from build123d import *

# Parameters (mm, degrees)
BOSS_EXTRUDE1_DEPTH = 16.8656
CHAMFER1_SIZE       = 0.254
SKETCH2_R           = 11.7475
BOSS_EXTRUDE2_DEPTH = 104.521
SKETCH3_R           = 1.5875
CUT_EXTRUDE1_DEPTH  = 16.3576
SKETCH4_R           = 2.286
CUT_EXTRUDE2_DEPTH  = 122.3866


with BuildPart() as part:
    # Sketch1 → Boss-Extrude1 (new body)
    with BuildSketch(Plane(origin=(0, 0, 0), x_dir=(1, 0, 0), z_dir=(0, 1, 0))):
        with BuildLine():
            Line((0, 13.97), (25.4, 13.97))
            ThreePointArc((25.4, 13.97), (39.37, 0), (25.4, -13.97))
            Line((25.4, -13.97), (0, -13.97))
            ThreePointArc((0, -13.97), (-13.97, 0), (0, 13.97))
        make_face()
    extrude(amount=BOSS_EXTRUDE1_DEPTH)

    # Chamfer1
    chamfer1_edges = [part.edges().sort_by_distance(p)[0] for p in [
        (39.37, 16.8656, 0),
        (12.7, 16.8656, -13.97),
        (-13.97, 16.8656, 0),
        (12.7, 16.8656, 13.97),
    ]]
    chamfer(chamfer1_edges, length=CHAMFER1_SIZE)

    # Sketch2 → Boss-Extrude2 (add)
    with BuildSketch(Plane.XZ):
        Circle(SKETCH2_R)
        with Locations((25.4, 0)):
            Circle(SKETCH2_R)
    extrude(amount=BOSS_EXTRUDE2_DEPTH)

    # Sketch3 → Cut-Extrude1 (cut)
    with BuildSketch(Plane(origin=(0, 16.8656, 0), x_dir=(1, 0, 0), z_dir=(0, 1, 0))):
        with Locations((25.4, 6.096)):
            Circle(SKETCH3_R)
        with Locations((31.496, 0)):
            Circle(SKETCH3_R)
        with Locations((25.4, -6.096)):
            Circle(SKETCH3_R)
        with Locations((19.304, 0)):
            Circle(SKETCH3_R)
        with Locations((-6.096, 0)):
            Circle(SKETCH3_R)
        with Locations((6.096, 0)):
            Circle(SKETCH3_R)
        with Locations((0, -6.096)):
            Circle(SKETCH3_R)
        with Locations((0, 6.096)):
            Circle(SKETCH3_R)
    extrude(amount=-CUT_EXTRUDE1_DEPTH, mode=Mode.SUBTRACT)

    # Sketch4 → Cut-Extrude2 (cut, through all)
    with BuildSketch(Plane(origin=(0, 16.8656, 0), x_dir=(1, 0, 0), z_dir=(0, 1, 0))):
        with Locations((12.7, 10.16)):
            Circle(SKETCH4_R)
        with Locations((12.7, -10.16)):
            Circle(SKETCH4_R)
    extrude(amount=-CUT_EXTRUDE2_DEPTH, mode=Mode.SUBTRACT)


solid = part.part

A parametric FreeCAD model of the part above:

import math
import FreeCAD as App
import Part
import Sketcher
from FreeCAD import Vector
Q = App.Units.Quantity


def edges_at(feature, points):
    """Names of the edges that pass closest to the given points."""
    edges = feature.Shape.Edges
    near = lambda p: min(range(len(edges)), key=lambda i: edges[i].distToShape(Part.Vertex(*p))[0])
    return sorted({f"Edge{near(p) + 1}" for p in points})

doc = App.newDocument("Part")
body = doc.addObject("PartDesign::Body", "Body")

sketch1 = body.newObject("Sketcher::SketchObject", "Sketch")
sketch1.AttachmentSupport = (doc.getObject("XZ_Plane"), [""])
sketch1.MapMode = "FlatFace"
sketch1.addGeometry(Part.LineSegment(Vector(25, -14, 0), Vector(0, -14, 0)), False)
sketch1.addGeometry(Part.ArcOfCircle(Part.Circle(Vector(0, 0, 0), Vector(0, 0, 1), 14), math.radians(90), math.radians(270)), False)
sketch1.addGeometry(Part.LineSegment(Vector(0, 14, 0), Vector(25, 14, 0)), False)
sketch1.addGeometry(Part.ArcOfCircle(Part.Circle(Vector(25, 0, 0), Vector(0, 0, 1), 14), math.radians(-90), math.radians(90)), False)
sketch1.addConstraint(Sketcher.Constraint("Tangent", 0, 2, 1, 2))
sketch1.addConstraint(Sketcher.Constraint("Tangent", 1, 1, 2, 1))
sketch1.addConstraint(Sketcher.Constraint("Tangent", 2, 2, 3, 2))
sketch1.addConstraint(Sketcher.Constraint("Tangent", 3, 1, 0, 1))
sketch1.addConstraint(Sketcher.Constraint("Horizontal", 0))
sketch1.addConstraint(Sketcher.Constraint("Horizontal", 2))
sketch1.addConstraint(Sketcher.Constraint("Coincident", 1, 3, -1, 1))
sketch1.addConstraint(Sketcher.Constraint("DistanceX", 0, 2, 0, 1, Q("1 in")))
sketch1.addConstraint(Sketcher.Constraint("Radius", 1, Q("0.55 in")))
pad1 = body.newObject("PartDesign::Pad", "Pad")
pad1.Profile = sketch1
pad1.Length = Q("0.664 in")
pad1.Reversed = True
doc.recompute()

chamfer = body.newObject("PartDesign::Chamfer", "Chamfer")
chamfer.Base = (pad1, edges_at(pad1, [
    (39.37, 16.866, 0),
    (12.7, 16.866, -13.97),
    (-13.97, 16.866, 0),
    (12.7, 16.866, 13.97),
]))
chamfer.Size = Q("0.01 in")

sketch2 = body.newObject("Sketcher::SketchObject", "Sketch001")
sketch2.AttachmentSupport = (doc.getObject("XZ_Plane"), [""])
sketch2.MapMode = "FlatFace"
sketch2.addGeometry(Part.Circle(Vector(0, 0, 0), Vector(0, 0, 1), 12), False)
sketch2.addGeometry(Part.Circle(Vector(25, 0, 0), Vector(0, 0, 1), 12), False)
sketch2.addConstraint(Sketcher.Constraint("Coincident", 0, 3, -1, 1))
sketch2.addConstraint(Sketcher.Constraint("Equal", 0, 1))
sketch2.addConstraint(Sketcher.Constraint("PointOnObject", 1, 3, -1))
sketch2.addConstraint(Sketcher.Constraint("Diameter", 0, Q("0.925 in")))
sketch2.addConstraint(Sketcher.Constraint("DistanceX", -1, 1, 1, 3, Q("1 in")))
pad2 = body.newObject("PartDesign::Pad", "Pad001")
pad2.Profile = sketch2
pad2.Length = Q("4.115 in")

sketch3 = body.newObject("Sketcher::SketchObject", "Sketch002")
sketch3.AttachmentSupport = (doc.getObject("XZ_Plane"), [""])
sketch3.MapMode = "FlatFace"
sketch3.AttachmentOffset = App.Placement(Vector(0, 0, -0.664 * 25.4), App.Rotation())
sketch3.addGeometry(Part.Circle(Vector(25.4, -6.1, 0), Vector(0, 0, 1), 1.6), False)
sketch3.addGeometry(Part.Circle(Vector(31.5, 0, 0), Vector(0, 0, 1), 1.6), False)
sketch3.addGeometry(Part.Circle(Vector(25.4, 6.1, 0), Vector(0, 0, 1), 1.6), False)
sketch3.addGeometry(Part.Circle(Vector(19.3, 0, 0), Vector(0, 0, 1), 1.6), False)
sketch3.addGeometry(Part.Circle(Vector(-6.1, 0, 0), Vector(0, 0, 1), 1.6), False)
sketch3.addGeometry(Part.Circle(Vector(6.1, 0, 0), Vector(0, 0, 1), 1.6), False)
sketch3.addGeometry(Part.Circle(Vector(0, 6.1, 0), Vector(0, 0, 1), 1.6), False)
sketch3.addGeometry(Part.Circle(Vector(0, -6.1, 0), Vector(0, 0, 1), 1.6), False)
sketch3.addConstraint(Sketcher.Constraint("Equal", 0, 1))
sketch3.addConstraint(Sketcher.Constraint("Equal", 1, 2))
sketch3.addConstraint(Sketcher.Constraint("Equal", 2, 3))
sketch3.addConstraint(Sketcher.Constraint("Equal", 3, 4))
sketch3.addConstraint(Sketcher.Constraint("Equal", 4, 5))
sketch3.addConstraint(Sketcher.Constraint("Equal", 5, 6))
sketch3.addConstraint(Sketcher.Constraint("Equal", 6, 7))
sketch3.addConstraint(Sketcher.Constraint("Symmetric", 4, 3, 5, 3, -1, 1))
sketch3.addConstraint(Sketcher.Constraint("Symmetric", 6, 3, 7, 3, -1, 1))
sketch3.addConstraint(Sketcher.Constraint("Symmetric", 0, 3, 2, 3, -1))
sketch3.addConstraint(Sketcher.Constraint("PointOnObject", 1, 3, -1))
sketch3.addConstraint(Sketcher.Constraint("PointOnObject", 3, 3, -1))
sketch3.addConstraint(Sketcher.Constraint("PointOnObject", 4, 3, -1))
sketch3.addConstraint(Sketcher.Constraint("PointOnObject", 6, 3, -2))
sketch3.addConstraint(Sketcher.Constraint("Horizontal", 2, 3, 6, 3))
sketch3.addConstraint(Sketcher.Constraint("Diameter", 0, Q("0.125 in")))
sketch3.addConstraint(Sketcher.Constraint("DistanceX", -1, 1, 0, 3, Q("1 in")))
sketch3.addConstraint(Sketcher.Constraint("DistanceX", 4, 3, 3, 3, Q("1 in")))
sketch3.addConstraint(Sketcher.Constraint("DistanceX", 5, 3, 1, 3, Q("1 in")))
sketch3.addConstraint(Sketcher.Constraint("DistanceY", 0, 3, -1, 1, Q("0.24 in")))
sketch3.addConstraint(Sketcher.Constraint("DistanceX", -1, 1, 1, 3, Q("1.24 in")))
pocket1 = body.newObject("PartDesign::Pocket", "Pocket")
pocket1.Profile = sketch3
pocket1.Length = Q("0.644 in")
pocket1.Reversed = True

sketch4 = body.newObject("Sketcher::SketchObject", "Sketch003")
sketch4.AttachmentSupport = (doc.getObject("XZ_Plane"), [""])
sketch4.MapMode = "FlatFace"
sketch4.AttachmentOffset = App.Placement(Vector(0, 0, -0.664 * 25.4), App.Rotation())
sketch4.addGeometry(Part.Circle(Vector(12.7, -10.2, 0), Vector(0, 0, 1), 2.3), False)
sketch4.addGeometry(Part.Circle(Vector(12.7, 10.2, 0), Vector(0, 0, 1), 2.3), False)
sketch4.addConstraint(Sketcher.Constraint("Equal", 0, 1))
sketch4.addConstraint(Sketcher.Constraint("Symmetric", 0, 3, 1, 3, -1))
sketch4.addConstraint(Sketcher.Constraint("Diameter", 0, Q("0.18 in")))
sketch4.addConstraint(Sketcher.Constraint("DistanceX", -1, 1, 0, 3, Q("0.5 in")))
sketch4.addConstraint(Sketcher.Constraint("DistanceY", 0, 3, -1, 1, Q("0.4 in")))
pocket2 = body.newObject("PartDesign::Pocket", "Pocket001")
pocket2.Profile = sketch4
pocket2.Type = "ThroughAll"
pocket2.Reversed = True

doc.recompute()
